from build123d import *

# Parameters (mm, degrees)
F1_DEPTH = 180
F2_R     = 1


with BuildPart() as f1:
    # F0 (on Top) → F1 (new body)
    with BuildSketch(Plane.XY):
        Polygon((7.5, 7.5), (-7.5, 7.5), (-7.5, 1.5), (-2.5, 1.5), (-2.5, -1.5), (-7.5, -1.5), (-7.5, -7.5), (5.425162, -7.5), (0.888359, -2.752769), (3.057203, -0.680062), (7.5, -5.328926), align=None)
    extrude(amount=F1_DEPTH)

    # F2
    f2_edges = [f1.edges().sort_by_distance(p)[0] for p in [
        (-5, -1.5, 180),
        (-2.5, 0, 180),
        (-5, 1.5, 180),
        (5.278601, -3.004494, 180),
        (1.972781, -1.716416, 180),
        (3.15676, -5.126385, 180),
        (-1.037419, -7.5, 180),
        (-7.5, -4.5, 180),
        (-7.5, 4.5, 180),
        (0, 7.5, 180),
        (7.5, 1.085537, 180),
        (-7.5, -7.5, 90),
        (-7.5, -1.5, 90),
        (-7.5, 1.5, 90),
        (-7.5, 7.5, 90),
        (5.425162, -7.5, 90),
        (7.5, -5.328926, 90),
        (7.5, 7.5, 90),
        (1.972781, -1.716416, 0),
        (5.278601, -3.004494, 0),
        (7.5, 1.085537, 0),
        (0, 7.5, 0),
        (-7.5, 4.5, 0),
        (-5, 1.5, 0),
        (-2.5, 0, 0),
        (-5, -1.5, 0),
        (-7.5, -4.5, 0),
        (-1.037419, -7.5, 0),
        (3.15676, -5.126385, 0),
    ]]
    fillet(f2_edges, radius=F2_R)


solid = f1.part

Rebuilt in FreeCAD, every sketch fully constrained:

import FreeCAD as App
import Part
import Sketcher
from FreeCAD import Vector
Q = App.Units.Quantity


def edges_at(feature, points):
    """Names of the edges that pass closest to the given points."""
    edges = feature.Shape.Edges
    near = lambda p: min(range(len(edges)), key=lambda i: edges[i].distToShape(Part.Vertex(*p))[0])
    return sorted({f"Edge{near(p) + 1}" for p in points})

doc = App.newDocument("Part")
body = doc.addObject("PartDesign::Body", "Body")

# Sketch on XY plane
sketch1 = body.newObject("Sketcher::SketchObject", "Sketch")
sketch1.AttachmentSupport = (doc.getObject("XY_Plane"), [""])
sketch1.MapMode = "FlatFace"
sketch1.addGeometry([
    Part.LineSegment(Vector(7.5, 7.5, 0), Vector(-7.5, 7.5, 0)),  # 0
    Part.LineSegment(Vector(-7.5, 7.5, 0), Vector(-7.5, 1.5, 0)),  # 1
    Part.LineSegment(Vector(-7.5, 1.5, 0), Vector(-2.5, 1.5, 0)),  # 2
    Part.LineSegment(Vector(-2.5, 1.5, 0), Vector(-2.5, -1.5, 0)),  # 3
    Part.LineSegment(Vector(-2.5, -1.5, 0), Vector(-7.5, -1.5, 0)),  # 4
    Part.LineSegment(Vector(-7.5, -1.5, 0), Vector(-7.5, -7.5, 0)),  # 5
    Part.LineSegment(Vector(-7.5, -7.5, 0), Vector(5.4, -7.5, 0)),  # 6
    Part.LineSegment(Vector(5.4, -7.5, 0), Vector(0.9, -2.8, 0)),  # 7
    Part.LineSegment(Vector(0.9, -2.8, 0), Vector(3.1, -0.7, 0)),  # 8
    Part.LineSegment(Vector(3.1, -0.7, 0), Vector(7.5, -5.3, 0)),  # 9
    Part.LineSegment(Vector(7.5, -5.3, 0), Vector(7.5, 7.5, 0)),  # 10
], False)
sketch1.addConstraint([
    Sketcher.Constraint("Coincident", 0, 2, 1, 1),
    Sketcher.Constraint("Coincident", 1, 2, 2, 1),
    Sketcher.Constraint("Coincident", 2, 2, 3, 1),
    Sketcher.Constraint("Coincident", 3, 2, 4, 1),
    Sketcher.Constraint("Coincident", 4, 2, 5, 1),
    Sketcher.Constraint("Coincident", 5, 2, 6, 1),
    Sketcher.Constraint("Coincident", 6, 2, 7, 1),
    Sketcher.Constraint("Coincident", 7, 2, 8, 1),
    Sketcher.Constraint("Coincident", 8, 2, 9, 1),
    Sketcher.Constraint("Coincident", 9, 2, 10, 1),
    Sketcher.Constraint("Coincident", 10, 2, 0, 1),
    Sketcher.Constraint("Horizontal", 0),
    Sketcher.Constraint("Vertical", 1),
    Sketcher.Constraint("Horizontal", 2),
    Sketcher.Constraint("Vertical", 3),
    Sketcher.Constraint("Horizontal", 4),
    Sketcher.Constraint("Vertical", 5),
    Sketcher.Constraint("Horizontal", 6),
    Sketcher.Constraint("Vertical", 10),
    Sketcher.Constraint("Symmetric", 5, 2, 10, 2, -1, 1),
    Sketcher.Constraint("Symmetric", 1, 2, 4, 2, -1),
    Sketcher.Constraint("Perpendicular", 7, 8),
    Sketcher.Constraint("Perpendicular", 8, 9),
    Sketcher.Constraint("DistanceX", 0, 2, 0, 1, Q("15 mm")),
    Sketcher.Constraint("DistanceX", 2, 1, 2, 2, Q("5 mm")),
    Sketcher.Constraint("DistanceY", 1, 2, 1, 1, Q("6 mm")),
    Sketcher.Constraint("DistanceY", 3, 2, 3, 1, Q("3 mm")),
    Sketcher.Constraint("Distance", 8, Q("3 mm")),
    Sketcher.Constraint("Distance", 7, Q("6.566489 mm")),
    Sketcher.Constraint("DistanceX", 6, 1, 6, 2, Q("12.925162 mm")),
    Sketcher.Constraint("DistanceY", 10, 1, 10, 2, Q("12.828926 mm")),
])
pad1 = body.newObject("PartDesign::Pad", "Pad")
pad1.Profile = sketch1
pad1.Length = 180
doc.recompute()

fillet = body.newObject("PartDesign::Fillet", "Fillet")
fillet.Base = (pad1, edges_at(pad1, [
    (-5, -1.5, 180),
    (-2.5, 0, 180),
    (-5, 1.5, 180),
    (5.279, -3.004, 180),
    (1.973, -1.716, 180),
    (3.157, -5.126, 180),
    (-1.037, -7.5, 180),
    (-7.5, -4.5, 180),
    (-7.5, 4.5, 180),
    (0, 7.5, 180),
    (7.5, 1.086, 180),
    (-7.5, -7.5, 90),
    (-7.5, -1.5, 90),
    (-7.5, 1.5, 90),
    (-7.5, 7.5, 90),
    (5.425, -7.5, 90),
    (7.5, -5.329, 90),
    (7.5, 7.5, 90),
    (1.973, -1.716, 0),
    (5.279, -3.004, 0),
    (7.5, 1.086, 0),
    (0, 7.5, 0),
    (-7.5, 4.5, 0),
    (-5, 1.5, 0),
    (-2.5, 0, 0),
    (-5, -1.5, 0),
    (-7.5, -4.5, 0),
    (-1.037, -7.5, 0),
    (3.157, -5.126, 0),
]))
fillet.Radius = 1

doc.recompute()
